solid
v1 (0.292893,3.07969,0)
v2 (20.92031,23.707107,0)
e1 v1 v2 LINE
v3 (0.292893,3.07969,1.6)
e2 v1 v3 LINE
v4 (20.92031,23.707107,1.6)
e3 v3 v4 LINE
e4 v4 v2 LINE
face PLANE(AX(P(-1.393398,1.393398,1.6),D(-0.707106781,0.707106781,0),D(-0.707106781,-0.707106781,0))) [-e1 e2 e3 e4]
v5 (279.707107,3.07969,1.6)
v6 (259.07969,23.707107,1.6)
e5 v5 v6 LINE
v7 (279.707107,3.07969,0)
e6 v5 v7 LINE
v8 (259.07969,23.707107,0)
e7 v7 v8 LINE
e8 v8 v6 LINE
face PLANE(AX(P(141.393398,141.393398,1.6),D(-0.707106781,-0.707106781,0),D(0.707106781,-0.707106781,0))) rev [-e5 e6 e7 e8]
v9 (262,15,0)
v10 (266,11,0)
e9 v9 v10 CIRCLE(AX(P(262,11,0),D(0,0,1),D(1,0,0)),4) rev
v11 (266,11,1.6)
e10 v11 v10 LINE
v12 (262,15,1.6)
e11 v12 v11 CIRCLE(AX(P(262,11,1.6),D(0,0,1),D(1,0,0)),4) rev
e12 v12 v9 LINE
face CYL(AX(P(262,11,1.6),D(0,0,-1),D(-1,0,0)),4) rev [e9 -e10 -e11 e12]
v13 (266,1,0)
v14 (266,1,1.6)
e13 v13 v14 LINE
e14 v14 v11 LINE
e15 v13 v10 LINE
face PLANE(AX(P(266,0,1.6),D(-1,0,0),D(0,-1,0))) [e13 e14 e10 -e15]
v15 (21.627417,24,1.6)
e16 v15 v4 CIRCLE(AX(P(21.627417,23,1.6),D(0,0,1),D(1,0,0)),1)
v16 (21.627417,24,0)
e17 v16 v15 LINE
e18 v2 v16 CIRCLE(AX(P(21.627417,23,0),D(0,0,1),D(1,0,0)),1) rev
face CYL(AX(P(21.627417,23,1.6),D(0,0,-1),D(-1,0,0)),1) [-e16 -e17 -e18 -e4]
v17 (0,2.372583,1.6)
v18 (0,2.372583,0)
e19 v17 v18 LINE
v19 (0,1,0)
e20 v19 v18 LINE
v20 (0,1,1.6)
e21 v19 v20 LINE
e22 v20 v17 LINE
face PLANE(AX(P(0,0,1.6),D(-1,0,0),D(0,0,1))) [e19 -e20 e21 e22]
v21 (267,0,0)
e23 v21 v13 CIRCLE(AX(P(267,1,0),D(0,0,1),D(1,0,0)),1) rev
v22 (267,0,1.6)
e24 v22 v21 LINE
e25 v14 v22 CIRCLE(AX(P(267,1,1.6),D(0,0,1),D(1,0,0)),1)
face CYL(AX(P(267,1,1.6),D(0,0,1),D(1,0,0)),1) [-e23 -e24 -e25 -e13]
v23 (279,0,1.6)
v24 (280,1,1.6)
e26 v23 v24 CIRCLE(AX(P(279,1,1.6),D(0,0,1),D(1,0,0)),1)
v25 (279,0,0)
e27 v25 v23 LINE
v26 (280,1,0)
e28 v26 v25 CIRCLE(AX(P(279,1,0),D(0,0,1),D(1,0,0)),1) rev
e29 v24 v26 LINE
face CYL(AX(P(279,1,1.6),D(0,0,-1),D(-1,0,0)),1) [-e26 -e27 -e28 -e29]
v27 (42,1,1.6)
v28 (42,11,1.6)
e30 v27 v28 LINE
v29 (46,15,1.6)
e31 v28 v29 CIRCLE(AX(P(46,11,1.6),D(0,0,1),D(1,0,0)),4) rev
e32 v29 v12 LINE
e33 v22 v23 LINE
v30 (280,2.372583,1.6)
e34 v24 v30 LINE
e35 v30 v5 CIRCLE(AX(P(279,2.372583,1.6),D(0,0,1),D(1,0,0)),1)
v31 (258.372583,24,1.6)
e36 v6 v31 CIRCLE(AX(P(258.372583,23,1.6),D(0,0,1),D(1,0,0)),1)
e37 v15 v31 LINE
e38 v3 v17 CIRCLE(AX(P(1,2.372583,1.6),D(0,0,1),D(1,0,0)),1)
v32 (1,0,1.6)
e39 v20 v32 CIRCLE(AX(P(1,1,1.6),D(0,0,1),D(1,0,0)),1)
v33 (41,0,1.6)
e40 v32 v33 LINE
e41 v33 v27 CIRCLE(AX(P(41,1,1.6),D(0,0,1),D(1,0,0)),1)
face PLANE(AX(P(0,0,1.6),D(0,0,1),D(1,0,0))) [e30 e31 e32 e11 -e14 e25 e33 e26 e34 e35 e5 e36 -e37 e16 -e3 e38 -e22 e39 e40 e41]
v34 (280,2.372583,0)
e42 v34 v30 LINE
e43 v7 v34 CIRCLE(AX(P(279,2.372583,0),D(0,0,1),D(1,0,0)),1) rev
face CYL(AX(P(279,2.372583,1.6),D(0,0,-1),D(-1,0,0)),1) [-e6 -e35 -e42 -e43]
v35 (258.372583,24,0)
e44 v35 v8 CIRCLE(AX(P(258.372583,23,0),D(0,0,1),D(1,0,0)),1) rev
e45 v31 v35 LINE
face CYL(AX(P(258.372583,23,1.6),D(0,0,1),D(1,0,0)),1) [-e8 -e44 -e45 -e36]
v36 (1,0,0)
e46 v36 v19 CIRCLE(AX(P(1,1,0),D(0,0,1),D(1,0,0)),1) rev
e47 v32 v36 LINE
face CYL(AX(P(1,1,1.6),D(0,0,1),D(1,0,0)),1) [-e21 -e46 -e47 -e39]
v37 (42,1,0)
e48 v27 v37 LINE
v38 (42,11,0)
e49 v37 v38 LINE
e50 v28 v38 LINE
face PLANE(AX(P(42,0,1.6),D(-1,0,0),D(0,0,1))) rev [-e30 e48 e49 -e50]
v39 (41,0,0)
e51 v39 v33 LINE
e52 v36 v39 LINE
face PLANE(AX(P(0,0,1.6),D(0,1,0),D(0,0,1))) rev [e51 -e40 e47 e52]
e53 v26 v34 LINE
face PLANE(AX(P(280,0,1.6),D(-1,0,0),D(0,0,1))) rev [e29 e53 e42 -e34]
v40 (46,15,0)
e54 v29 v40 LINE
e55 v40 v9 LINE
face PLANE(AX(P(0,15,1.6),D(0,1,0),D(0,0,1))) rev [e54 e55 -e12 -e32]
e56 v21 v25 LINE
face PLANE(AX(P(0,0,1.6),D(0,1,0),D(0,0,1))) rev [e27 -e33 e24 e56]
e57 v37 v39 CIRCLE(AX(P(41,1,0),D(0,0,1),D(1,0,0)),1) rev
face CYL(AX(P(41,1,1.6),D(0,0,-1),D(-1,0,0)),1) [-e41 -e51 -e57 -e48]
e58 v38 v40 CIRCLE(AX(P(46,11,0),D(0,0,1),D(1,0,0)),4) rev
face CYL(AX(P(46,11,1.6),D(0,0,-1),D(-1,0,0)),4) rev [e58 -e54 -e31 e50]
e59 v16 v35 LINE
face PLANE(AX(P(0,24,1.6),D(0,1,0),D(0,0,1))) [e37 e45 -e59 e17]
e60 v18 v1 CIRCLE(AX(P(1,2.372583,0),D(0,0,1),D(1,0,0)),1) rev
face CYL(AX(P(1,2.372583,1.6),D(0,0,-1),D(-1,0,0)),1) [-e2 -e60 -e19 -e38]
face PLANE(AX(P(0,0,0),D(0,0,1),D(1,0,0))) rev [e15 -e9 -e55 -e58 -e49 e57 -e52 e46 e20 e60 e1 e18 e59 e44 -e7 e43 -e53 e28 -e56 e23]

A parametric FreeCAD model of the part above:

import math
import FreeCAD as App
import Part
import Sketcher


def edges_at(feature, points):
    """Names of the edges that pass closest to the given points."""
    edges = feature.Shape.Edges
    near = lambda p: min(range(len(edges)), key=lambda i: edges[i].distToShape(Part.Vertex(*p))[0])
    return sorted({f"Edge{near(p) + 1}" for p in points})

doc = App.newDocument("Part")
body = doc.addObject("PartDesign::Body", "Body")

# Sketch on XY plane
sketch1 = doc.addObject("Sketcher::SketchObject", "Sketch")
body.addObject(sketch1)
sketch1.AttachmentSupport = (doc.XY_Plane, [""])
sketch1.MapMode = "FlatFace"
sketch1.addGeometry(Part.LineSegment(App.Vector(21.2, 24, 0), App.Vector(0, 2.8, 0)), False)
sketch1.addGeometry(Part.LineSegment(App.Vector(0, 2.8, 0), App.Vector(0, 0, 0)), False)
sketch1.addGeometry(Part.LineSegment(App.Vector(0, 0, 0), App.Vector(42, 0, 0)), False)
sketch1.addGeometry(Part.LineSegment(App.Vector(42, 0, 0), App.Vector(42, 11, 0)), False)
sketch1.addGeometry(Part.ArcOfCircle(Part.Circle(App.Vector(46, 11, 0), App.Vector(0, 0, 1), 4), math.radians(90), math.radians(180)), False)
sketch1.addGeometry(Part.LineSegment(App.Vector(46, 15, 0), App.Vector(262, 15, 0)), False)
sketch1.addGeometry(Part.ArcOfCircle(Part.Circle(App.Vector(262, 11, 0), App.Vector(0, 0, 1), 4), math.radians(0), math.radians(90)), False)
sketch1.addGeometry(Part.LineSegment(App.Vector(266, 11, 0), App.Vector(266, 0, 0)), False)
sketch1.addGeometry(Part.LineSegment(App.Vector(266, 0, 0), App.Vector(280, 0, 0)), False)
sketch1.addGeometry(Part.LineSegment(App.Vector(280, 0, 0), App.Vector(280, 2.8, 0)), False)
sketch1.addGeometry(Part.LineSegment(App.Vector(280, 2.8, 0), App.Vector(258.8, 24, 0)), False)
sketch1.addGeometry(Part.LineSegment(App.Vector(258.8, 24, 0), App.Vector(21.2, 24, 0)), False)
sketch1.addConstraint(Sketcher.Constraint("Coincident", 0, 2, 1, 1))
sketch1.addConstraint(Sketcher.Constraint("Coincident", 1, 2, 2, 1))
sketch1.addConstraint(Sketcher.Constraint("Coincident", 2, 2, 3, 1))
sketch1.addConstraint(Sketcher.Constraint("Tangent", 3, 2, 4, 2))
sketch1.addConstraint(Sketcher.Constraint("Tangent", 4, 1, 5, 1))
sketch1.addConstraint(Sketcher.Constraint("Tangent", 5, 2, 6, 2))
sketch1.addConstraint(Sketcher.Constraint("Tangent", 6, 1, 7, 1))
sketch1.addConstraint(Sketcher.Constraint("Coincident", 7, 2, 8, 1))
sketch1.addConstraint(Sketcher.Constraint("Coincident", 8, 2, 9, 1))
sketch1.addConstraint(Sketcher.Constraint("Coincident", 9, 2, 10, 1))
sketch1.addConstraint(Sketcher.Constraint("Coincident", 10, 2, 11, 1))
sketch1.addConstraint(Sketcher.Constraint("Coincident", 11, 2, 0, 1))
sketch1.addConstraint(Sketcher.Constraint("Vertical", 1))
sketch1.addConstraint(Sketcher.Constraint("Horizontal", 2))
sketch1.addConstraint(Sketcher.Constraint("Vertical", 3))
sketch1.addConstraint(Sketcher.Constraint("Horizontal", 5))
sketch1.addConstraint(Sketcher.Constraint("Vertical", 7))
sketch1.addConstraint(Sketcher.Constraint("Horizontal", 8))
sketch1.addConstraint(Sketcher.Constraint("Vertical", 9))
sketch1.addConstraint(Sketcher.Constraint("Horizontal", 11))
sketch1.addConstraint(Sketcher.Constraint("Coincident", 1, 2, -1, 1))
sketch1.addConstraint(Sketcher.Constraint("Equal", 4, 6))
sketch1.addConstraint(Sketcher.Constraint("PointOnObject", 7, 2, -1))
sketch1.addConstraint(Sketcher.Constraint("Perpendicular", 0, 10))
sketch1.addConstraint(Sketcher.Constraint("Horizontal", 0, 2, 9, 2))
sketch1.addConstraint(Sketcher.Constraint("Equal", 0, 10))
sketch1.addConstraint(Sketcher.Constraint("Radius", 4, 4.0))
sketch1.addConstraint(Sketcher.Constraint("DistanceX", 2, 1, 2, 2, 42.0))
sketch1.addConstraint(Sketcher.Constraint("DistanceX", 5, 1, 5, 2, 216.0))
sketch1.addConstraint(Sketcher.Constraint("DistanceX", 8, 1, 8, 2, 14.0))
sketch1.addConstraint(Sketcher.Constraint("DistanceY", 3, 1, 3, 2, 11.0))
sketch1.addConstraint(Sketcher.Constraint("Distance", 0, 30.0))
sketch1.addConstraint(Sketcher.Constraint("DistanceY", -1, 1, 10, 2, 24.0))
pad1 = doc.addObject("PartDesign::Pad", "Pad")
body.addObject(pad1)
pad1.Profile = sketch1
pad1.Length = 1.6
doc.recompute()

fillet = doc.addObject("PartDesign::Fillet", "Fillet")
body.addObject(fillet)
fillet.Base = (pad1, edges_at(pad1, [
    (42, 0, 0.8),
    (0, 0, 0.8),
    (0, 2.787, 0.8),
    (21.213, 24, 0.8),
    (258.787, 24, 0.8),
    (280, 2.787, 0.8),
    (280, 0, 0.8),
    (266, 0, 0.8),
]))
fillet.Radius = 1

doc.recompute()
